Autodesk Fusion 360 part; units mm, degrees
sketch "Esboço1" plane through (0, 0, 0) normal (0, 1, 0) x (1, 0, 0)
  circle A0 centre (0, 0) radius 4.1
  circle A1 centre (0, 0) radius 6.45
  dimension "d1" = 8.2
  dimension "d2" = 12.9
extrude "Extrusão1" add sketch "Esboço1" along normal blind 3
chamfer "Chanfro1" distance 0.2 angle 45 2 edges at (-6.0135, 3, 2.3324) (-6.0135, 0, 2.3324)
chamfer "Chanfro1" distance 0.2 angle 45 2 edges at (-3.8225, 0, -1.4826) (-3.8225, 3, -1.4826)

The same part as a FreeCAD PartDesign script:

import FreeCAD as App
import Part
import Sketcher
Q = App.Units.Quantity


def edges_at(feature, points):
    """Names of the edges that pass closest to the given points."""
    edges = feature.Shape.Edges
    near = lambda p: min(range(len(edges)), key=lambda i: edges[i].distToShape(Part.Vertex(*p))[0])
    return sorted({f"Edge{near(p) + 1}" for p in points})

doc = App.newDocument("Part")
body = doc.addObject("PartDesign::Body", "Body")

# Sketch on XZ plane
sketch1 = body.newObject("Sketcher::SketchObject", "Sketch")
sketch1.AttachmentSupport = (doc.getObject("XZ_Plane"), [""])
sketch1.MapMode = "FlatFace"
sketch1.addGeometry(Part.Circle(App.Vector(0, 0, 0), App.Vector(0, 0, 1), 6.5), False)
sketch1.addGeometry(Part.Circle(App.Vector(0, 0, 0), App.Vector(0, 0, 1), 4.1), False)
sketch1.addConstraint(Sketcher.Constraint("Coincident", 0, 3, -1, 1))
sketch1.addConstraint(Sketcher.Constraint("Coincident", 1, 3, -1, 1))
sketch1.addConstraint(Sketcher.Constraint("Diameter", 0, Q("12.9 mm")))
sketch1.addConstraint(Sketcher.Constraint("Diameter", 1, Q("8.2 mm")))
pad1 = body.newObject("PartDesign::Pad", "Pad")
pad1.Profile = sketch1
pad1.Length = 3
pad1.Reversed = True
doc.recompute()

chamfer = body.newObject("PartDesign::Chamfer", "Chamfer")
chamfer.Base = (pad1, edges_at(pad1, [(-6.013, 3, 2.332), (-6.013, 0, 2.332)]))
chamfer.Size = 0.2
doc.recompute()

chamfer2 = body.newObject("PartDesign::Chamfer", "Chamfer001")
chamfer2.Base = (chamfer, edges_at(chamfer, [(-3.822, 0, -1.483), (-3.822, 3, -1.483)]))
chamfer2.Size = 0.2

doc.recompute()
